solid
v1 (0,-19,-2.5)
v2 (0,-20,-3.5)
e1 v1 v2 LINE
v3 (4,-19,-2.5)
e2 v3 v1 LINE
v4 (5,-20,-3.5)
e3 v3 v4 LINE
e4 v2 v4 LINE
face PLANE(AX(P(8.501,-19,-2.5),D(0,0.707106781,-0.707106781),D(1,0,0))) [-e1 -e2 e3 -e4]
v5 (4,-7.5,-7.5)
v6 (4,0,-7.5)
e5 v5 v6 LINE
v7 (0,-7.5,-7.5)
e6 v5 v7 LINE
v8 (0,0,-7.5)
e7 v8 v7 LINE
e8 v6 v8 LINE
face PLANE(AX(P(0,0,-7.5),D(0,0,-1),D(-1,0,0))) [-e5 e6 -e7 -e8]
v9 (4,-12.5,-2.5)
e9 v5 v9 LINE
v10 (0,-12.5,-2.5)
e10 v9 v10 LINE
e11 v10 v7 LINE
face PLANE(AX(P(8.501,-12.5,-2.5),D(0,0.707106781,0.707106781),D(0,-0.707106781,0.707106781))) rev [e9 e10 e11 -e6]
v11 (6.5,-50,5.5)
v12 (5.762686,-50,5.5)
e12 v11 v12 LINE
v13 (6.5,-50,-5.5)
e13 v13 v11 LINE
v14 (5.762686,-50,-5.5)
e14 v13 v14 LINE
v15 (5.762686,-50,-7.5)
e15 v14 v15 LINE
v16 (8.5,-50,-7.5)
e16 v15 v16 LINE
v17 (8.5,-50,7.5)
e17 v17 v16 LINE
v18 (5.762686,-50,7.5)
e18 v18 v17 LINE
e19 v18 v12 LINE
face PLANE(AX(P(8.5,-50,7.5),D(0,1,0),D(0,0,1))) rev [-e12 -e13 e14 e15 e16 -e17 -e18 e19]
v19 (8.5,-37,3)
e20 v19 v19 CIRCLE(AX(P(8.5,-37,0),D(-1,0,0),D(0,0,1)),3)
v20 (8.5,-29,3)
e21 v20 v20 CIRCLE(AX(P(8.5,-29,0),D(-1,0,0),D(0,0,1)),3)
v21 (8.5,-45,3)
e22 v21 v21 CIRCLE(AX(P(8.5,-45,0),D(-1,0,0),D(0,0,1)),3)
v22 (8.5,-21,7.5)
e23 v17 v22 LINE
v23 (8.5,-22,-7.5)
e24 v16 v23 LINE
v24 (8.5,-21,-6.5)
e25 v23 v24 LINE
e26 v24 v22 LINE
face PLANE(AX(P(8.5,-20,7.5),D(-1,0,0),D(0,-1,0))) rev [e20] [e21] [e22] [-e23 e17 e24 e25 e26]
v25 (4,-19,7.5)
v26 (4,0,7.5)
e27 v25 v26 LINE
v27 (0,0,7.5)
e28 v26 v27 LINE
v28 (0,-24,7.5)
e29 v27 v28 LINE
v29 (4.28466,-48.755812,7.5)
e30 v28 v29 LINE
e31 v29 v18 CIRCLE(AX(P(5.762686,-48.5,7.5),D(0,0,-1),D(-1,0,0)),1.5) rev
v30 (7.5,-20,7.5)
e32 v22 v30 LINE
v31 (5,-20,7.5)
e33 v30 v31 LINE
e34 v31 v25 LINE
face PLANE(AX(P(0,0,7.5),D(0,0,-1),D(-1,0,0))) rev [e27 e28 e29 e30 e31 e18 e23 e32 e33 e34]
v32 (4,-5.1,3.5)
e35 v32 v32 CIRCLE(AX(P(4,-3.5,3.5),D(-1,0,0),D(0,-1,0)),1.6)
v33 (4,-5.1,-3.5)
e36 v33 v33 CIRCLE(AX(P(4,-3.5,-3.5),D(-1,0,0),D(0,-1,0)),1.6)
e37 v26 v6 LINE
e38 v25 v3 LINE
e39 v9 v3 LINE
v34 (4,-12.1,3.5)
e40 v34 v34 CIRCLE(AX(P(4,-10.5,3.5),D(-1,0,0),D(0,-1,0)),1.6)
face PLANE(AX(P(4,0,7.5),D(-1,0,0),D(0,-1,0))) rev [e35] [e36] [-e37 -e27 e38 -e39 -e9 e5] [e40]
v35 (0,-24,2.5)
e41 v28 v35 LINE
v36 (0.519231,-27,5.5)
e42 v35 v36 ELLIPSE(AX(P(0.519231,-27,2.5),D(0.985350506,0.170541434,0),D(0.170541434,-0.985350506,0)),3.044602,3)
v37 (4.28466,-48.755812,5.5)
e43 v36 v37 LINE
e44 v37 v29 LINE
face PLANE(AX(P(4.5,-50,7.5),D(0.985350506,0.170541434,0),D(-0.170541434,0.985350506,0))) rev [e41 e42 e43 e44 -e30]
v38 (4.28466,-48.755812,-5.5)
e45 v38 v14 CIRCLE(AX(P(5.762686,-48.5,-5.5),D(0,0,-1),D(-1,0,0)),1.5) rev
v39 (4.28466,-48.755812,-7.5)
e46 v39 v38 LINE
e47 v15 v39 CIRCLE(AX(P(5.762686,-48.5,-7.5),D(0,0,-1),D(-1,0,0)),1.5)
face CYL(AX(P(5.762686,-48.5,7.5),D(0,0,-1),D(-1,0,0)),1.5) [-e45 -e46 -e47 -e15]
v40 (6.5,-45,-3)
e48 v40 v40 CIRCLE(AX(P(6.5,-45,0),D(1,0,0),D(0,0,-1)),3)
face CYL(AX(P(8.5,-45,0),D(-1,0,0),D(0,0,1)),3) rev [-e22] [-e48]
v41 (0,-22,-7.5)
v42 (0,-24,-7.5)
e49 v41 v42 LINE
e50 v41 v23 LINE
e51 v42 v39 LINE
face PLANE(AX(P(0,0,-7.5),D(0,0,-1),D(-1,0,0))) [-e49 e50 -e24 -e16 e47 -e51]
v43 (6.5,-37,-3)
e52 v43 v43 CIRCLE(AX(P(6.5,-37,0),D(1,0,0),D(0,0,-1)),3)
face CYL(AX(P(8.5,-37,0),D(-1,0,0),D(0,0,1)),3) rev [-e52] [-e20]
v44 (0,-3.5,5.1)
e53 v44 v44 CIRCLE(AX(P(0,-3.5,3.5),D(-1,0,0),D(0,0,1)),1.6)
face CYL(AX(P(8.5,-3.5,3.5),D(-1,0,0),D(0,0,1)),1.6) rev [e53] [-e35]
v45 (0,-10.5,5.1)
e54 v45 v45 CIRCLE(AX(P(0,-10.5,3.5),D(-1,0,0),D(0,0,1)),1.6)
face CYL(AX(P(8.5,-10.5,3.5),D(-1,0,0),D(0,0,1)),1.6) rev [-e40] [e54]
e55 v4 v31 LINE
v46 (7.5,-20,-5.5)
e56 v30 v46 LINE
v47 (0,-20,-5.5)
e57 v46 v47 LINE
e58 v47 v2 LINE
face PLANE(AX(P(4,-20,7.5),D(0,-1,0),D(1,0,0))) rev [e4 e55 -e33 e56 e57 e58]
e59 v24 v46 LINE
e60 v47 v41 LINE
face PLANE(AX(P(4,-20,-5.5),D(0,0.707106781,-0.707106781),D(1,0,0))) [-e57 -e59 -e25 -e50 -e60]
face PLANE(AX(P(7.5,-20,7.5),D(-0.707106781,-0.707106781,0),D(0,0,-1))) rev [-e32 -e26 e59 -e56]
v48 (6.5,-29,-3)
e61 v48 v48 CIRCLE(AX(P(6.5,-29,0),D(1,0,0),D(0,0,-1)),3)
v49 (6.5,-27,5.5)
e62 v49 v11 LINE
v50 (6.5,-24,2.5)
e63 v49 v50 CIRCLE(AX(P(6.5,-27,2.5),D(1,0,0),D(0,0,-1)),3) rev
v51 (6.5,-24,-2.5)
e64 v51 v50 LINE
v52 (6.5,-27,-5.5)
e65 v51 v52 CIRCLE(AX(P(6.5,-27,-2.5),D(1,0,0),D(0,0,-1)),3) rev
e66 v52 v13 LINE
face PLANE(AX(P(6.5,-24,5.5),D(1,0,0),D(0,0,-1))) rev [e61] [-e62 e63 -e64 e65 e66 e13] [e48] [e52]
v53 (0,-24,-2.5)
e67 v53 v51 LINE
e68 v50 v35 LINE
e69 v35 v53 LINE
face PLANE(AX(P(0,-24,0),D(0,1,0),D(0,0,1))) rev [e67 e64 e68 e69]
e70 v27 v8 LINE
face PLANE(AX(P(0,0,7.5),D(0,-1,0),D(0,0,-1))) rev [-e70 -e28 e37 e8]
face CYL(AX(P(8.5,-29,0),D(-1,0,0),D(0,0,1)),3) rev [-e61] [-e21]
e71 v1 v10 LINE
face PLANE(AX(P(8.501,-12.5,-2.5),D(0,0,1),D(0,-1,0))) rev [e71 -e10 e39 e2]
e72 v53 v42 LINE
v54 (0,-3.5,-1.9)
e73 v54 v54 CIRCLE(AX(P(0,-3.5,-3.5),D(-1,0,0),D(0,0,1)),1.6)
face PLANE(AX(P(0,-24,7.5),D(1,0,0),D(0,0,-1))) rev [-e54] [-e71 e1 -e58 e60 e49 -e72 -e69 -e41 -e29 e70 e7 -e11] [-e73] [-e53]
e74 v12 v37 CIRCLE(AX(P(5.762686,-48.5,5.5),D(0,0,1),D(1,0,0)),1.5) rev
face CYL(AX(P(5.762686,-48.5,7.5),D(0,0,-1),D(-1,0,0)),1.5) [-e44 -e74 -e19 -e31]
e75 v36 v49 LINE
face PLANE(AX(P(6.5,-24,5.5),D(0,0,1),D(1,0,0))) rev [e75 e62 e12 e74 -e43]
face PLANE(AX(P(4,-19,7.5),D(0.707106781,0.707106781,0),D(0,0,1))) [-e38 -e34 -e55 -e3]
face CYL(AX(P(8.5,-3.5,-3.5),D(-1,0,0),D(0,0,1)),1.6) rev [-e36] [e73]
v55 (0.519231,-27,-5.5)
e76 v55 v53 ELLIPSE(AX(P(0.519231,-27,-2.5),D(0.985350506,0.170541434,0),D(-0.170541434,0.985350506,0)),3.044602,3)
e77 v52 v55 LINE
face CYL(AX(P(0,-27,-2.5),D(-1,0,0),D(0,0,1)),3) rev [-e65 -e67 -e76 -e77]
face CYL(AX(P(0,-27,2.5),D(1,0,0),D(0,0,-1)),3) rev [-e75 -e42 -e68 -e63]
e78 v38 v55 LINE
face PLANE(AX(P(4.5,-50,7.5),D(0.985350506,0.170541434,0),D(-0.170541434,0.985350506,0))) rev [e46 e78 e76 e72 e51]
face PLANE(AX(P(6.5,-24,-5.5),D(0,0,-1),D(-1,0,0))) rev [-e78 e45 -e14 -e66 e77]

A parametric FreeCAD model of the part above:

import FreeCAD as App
import Part
import Sketcher

V = App.Vector
Q = App.Units.Quantity


def edges_at(feature, points):
    """Names of the edges that pass closest to the given points."""
    edges = feature.Shape.Edges
    near = lambda p: min(range(len(edges)), key=lambda i: edges[i].distToShape(Part.Vertex(*p))[0])
    return sorted({f"Edge{near(p) + 1}" for p in points})

doc = App.newDocument("Part")
body = doc.addObject("PartDesign::Body", "Body")

# Sketch on XY plane
sketch1 = body.newObject("Sketcher::SketchObject", "Sketch")
sketch1.AttachmentSupport = (doc.getObject("XY_Plane"), [""])
sketch1.MapMode = "FlatFace"
sketch1.addGeometry([
    Part.LineSegment(V(4, 0, 0), V(0, 0, 0)),  # 0
    Part.LineSegment(V(0, 0, 0), V(0, -24, 0)),  # 1
    Part.LineSegment(V(0, -24, 0), V(4.5, -50, 0)),  # 2
    Part.LineSegment(V(4.5, -50, 0), V(8.5, -50, 0)),  # 3
    Part.LineSegment(V(8.5, -50, 0), V(8.5, -20, 0)),  # 4
    Part.LineSegment(V(8.5, -20, 0), V(4, -20, 0)),  # 5
    Part.LineSegment(V(4, -20, 0), V(4, 0, 0)),  # 6
], False)
sketch1.addConstraint([
    Sketcher.Constraint("Coincident", 0, 2, 1, 1),
    Sketcher.Constraint("Coincident", 1, 2, 2, 1),
    Sketcher.Constraint("Coincident", 2, 2, 3, 1),
    Sketcher.Constraint("Coincident", 3, 2, 4, 1),
    Sketcher.Constraint("Coincident", 4, 2, 5, 1),
    Sketcher.Constraint("Coincident", 5, 2, 6, 1),
    Sketcher.Constraint("Coincident", 6, 2, 0, 1),
    Sketcher.Constraint("Horizontal", 0),
    Sketcher.Constraint("Vertical", 1),
    Sketcher.Constraint("Horizontal", 3),
    Sketcher.Constraint("Vertical", 4),
    Sketcher.Constraint("Horizontal", 5),
    Sketcher.Constraint("Vertical", 6),
    Sketcher.Constraint("Coincident", 0, 2, -1, 1),
    Sketcher.Constraint("Equal", 0, 3),
    Sketcher.Constraint("DistanceX", 0, 2, 0, 1, 4.0),
    Sketcher.Constraint("DistanceY", 1, 2, 1, 1, 24.0),
    Sketcher.Constraint("DistanceY", 4, 1, 4, 2, 30.0),
    Sketcher.Constraint("DistanceY", 6, 1, 6, 2, 20.0),
    Sketcher.Constraint("DistanceX", 5, 2, 5, 1, 4.5),
])
pad1 = body.newObject("PartDesign::Pad", "Pad")
pad1.Profile = sketch1
pad1.Length = 15
pad1.Midplane = True

# Sketch on XZ plane
sketch2 = body.newObject("Sketcher::SketchObject", "Sketch001")
sketch2.AttachmentSupport = (doc.getObject("XZ_Plane"), [""])
sketch2.MapMode = "FlatFace"
sketch2.AttachmentOffset = App.Placement(V(0, 0, 50), App.Rotation())
sketch2.addGeometry([
    Part.LineSegment(V(0, 6, 0), V(0, -6, 0)),
    Part.LineSegment(V(0, -6, 0), V(6, -6, 0)),
    Part.LineSegment(V(6, -6, 0), V(6, 6, 0)),
    Part.LineSegment(V(6, 6, 0), V(0, 6, 0)),
], False)
sketch2.addConstraint([
    Sketcher.Constraint("Coincident", 0, 2, 1, 1),
    Sketcher.Constraint("Coincident", 1, 2, 2, 1),
    Sketcher.Constraint("Coincident", 2, 2, 3, 1),
    Sketcher.Constraint("Coincident", 3, 2, 0, 1),
    Sketcher.Constraint("Vertical", 0),
    Sketcher.Constraint("Horizontal", 1),
    Sketcher.Constraint("Vertical", 2),
    Sketcher.Constraint("Horizontal", 3),
    Sketcher.Constraint("Symmetric", 0, 2, 3, 2, -1, 1),
    Sketcher.Constraint("DistanceY", 0, 2, 0, 1, 11.0),
    Sketcher.Constraint("DistanceX", 1, 1, 1, 2, 6.5),
])
pocket1 = body.newObject("PartDesign::Pocket", "Pocket")
pocket1.Profile = sketch2
pocket1.Length = 26

# Sketch on YZ plane
sketch3 = body.newObject("Sketcher::SketchObject", "Sketch002")
sketch3.AttachmentSupport = (doc.getObject("YZ_Plane"), [""])
sketch3.MapMode = "FlatFace"
sketch3.addGeometry([
    Part.LineSegment(V(-8, -8, 0), V(-20, -8, 0)),
    Part.LineSegment(V(-20, -8, 0), V(-20, -2, 0)),
    Part.LineSegment(V(-20, -2, 0), V(-12, -2, 0)),
    Part.LineSegment(V(-12, -2, 0), V(-8, -8, 0)),
], False)
sketch3.addConstraint([
    Sketcher.Constraint("Coincident", 0, 2, 1, 1),
    Sketcher.Constraint("Coincident", 1, 2, 2, 1),
    Sketcher.Constraint("Coincident", 2, 2, 3, 1),
    Sketcher.Constraint("Coincident", 3, 2, 0, 1),
    Sketcher.Constraint("Horizontal", 0),
    Sketcher.Constraint("Vertical", 1),
    Sketcher.Constraint("Horizontal", 2),
    Sketcher.Constraint("DistanceY", 1, 1, 1, 2, 5.0),
    Sketcher.Constraint("Angle", 3, Q("-45 deg")),
    Sketcher.Constraint("DistanceX", 0, 2, 0, 1, 12.5),
    Sketcher.Constraint("DistanceX", 0, 2, -1, 1, 20.0),
    Sketcher.Constraint("DistanceY", 0, 2, -1, 1, 7.5),
])
pocket2 = body.newObject("PartDesign::Pocket", "Pocket001")
pocket2.Profile = sketch3
pocket2.Type = "UpToFirst"
pocket2.Reversed = True

# Sketch on YZ plane
sketch4 = body.newObject("Sketcher::SketchObject", "Sketch003")
sketch4.AttachmentSupport = (doc.getObject("YZ_Plane"), [""])
sketch4.MapMode = "FlatFace"
sketch4.addGeometry([
    Part.Circle(V(-3.5, -3.5, 0), V(0, 0, 1), 1.6),  # 0
    Part.Circle(V(-3.5, 3.5, 0), V(0, 0, 1), 1.6),  # 1
    Part.Circle(V(-29, 0, 0), V(0, 0, 1), 3),  # 2
    Part.Circle(V(-37, 0, 0), V(0, 0, 1), 3),  # 3
    Part.Circle(V(-45, 0, 0), V(0, 0, 1), 3),  # 4
    Part.Circle(V(-10.5, 3.5, 0), V(0, 0, 1), 1.6),  # 5
], False)
sketch4.addConstraint([
    Sketcher.Constraint("Equal", 0, 1),
    Sketcher.Constraint("Equal", 2, 3),
    Sketcher.Constraint("Equal", 3, 4),
    Sketcher.Constraint("Equal", 1, 5),
    Sketcher.Constraint("Symmetric", 0, 3, 1, 3, -1),
    Sketcher.Constraint("PointOnObject", 2, 3, -1),
    Sketcher.Constraint("PointOnObject", 3, 3, -1),
    Sketcher.Constraint("PointOnObject", 4, 3, -1),
    Sketcher.Constraint("Horizontal", 1, 3, 5, 3),
    Sketcher.Constraint("Diameter", 2, 6.0),
    Sketcher.Constraint("Diameter", 0, 3.2),
    Sketcher.Constraint("DistanceX", 2, 3, -1, 1, 29.0),
    Sketcher.Constraint("DistanceX", 3, 3, -1, 1, 37.0),
    Sketcher.Constraint("DistanceX", 4, 3, -1, 1, 45.0),
    Sketcher.Constraint("DistanceY", 0, 3, 1, 3, 7.0),
    Sketcher.Constraint("DistanceX", 5, 3, 1, 3, 7.0),
    Sketcher.Constraint("DistanceX", 0, 3, -1, 1, 3.5),
])
pocket3 = body.newObject("PartDesign::Pocket", "Pocket002")
pocket3.Profile = sketch4
pocket3.Type = "ThroughAll"
pocket3.Reversed = True
doc.recompute()

fillet = body.newObject("PartDesign::Fillet", "Fillet")
fillet.Base = (pocket3, edges_at(pocket3, [(3.25, -24, -5.5), (3.25, -24, 5.5)]))
fillet.Radius = 3
doc.recompute()

fillet2 = body.newObject("PartDesign::Fillet", "Fillet001")
fillet2.Base = (fillet, edges_at(fillet, [(4.5, -50, 6.5), (4.5, -50, -6.5)]))
fillet2.Radius = 1.5
doc.recompute()

chamfer = body.newObject("PartDesign::Chamfer", "Chamfer")
chamfer.Base = (fillet2, edges_at(fillet2, [(4, -20, 2.5), (8.5, -20, 0), (2, -20, -2.5)]))
chamfer.Size = 1
doc.recompute()

chamfer2 = body.newObject("PartDesign::Chamfer", "Chamfer001")
chamfer2.Base = (chamfer, edges_at(chamfer, [(3.75, -20, -7.5)]))
chamfer2.Size = 2

doc.recompute()
